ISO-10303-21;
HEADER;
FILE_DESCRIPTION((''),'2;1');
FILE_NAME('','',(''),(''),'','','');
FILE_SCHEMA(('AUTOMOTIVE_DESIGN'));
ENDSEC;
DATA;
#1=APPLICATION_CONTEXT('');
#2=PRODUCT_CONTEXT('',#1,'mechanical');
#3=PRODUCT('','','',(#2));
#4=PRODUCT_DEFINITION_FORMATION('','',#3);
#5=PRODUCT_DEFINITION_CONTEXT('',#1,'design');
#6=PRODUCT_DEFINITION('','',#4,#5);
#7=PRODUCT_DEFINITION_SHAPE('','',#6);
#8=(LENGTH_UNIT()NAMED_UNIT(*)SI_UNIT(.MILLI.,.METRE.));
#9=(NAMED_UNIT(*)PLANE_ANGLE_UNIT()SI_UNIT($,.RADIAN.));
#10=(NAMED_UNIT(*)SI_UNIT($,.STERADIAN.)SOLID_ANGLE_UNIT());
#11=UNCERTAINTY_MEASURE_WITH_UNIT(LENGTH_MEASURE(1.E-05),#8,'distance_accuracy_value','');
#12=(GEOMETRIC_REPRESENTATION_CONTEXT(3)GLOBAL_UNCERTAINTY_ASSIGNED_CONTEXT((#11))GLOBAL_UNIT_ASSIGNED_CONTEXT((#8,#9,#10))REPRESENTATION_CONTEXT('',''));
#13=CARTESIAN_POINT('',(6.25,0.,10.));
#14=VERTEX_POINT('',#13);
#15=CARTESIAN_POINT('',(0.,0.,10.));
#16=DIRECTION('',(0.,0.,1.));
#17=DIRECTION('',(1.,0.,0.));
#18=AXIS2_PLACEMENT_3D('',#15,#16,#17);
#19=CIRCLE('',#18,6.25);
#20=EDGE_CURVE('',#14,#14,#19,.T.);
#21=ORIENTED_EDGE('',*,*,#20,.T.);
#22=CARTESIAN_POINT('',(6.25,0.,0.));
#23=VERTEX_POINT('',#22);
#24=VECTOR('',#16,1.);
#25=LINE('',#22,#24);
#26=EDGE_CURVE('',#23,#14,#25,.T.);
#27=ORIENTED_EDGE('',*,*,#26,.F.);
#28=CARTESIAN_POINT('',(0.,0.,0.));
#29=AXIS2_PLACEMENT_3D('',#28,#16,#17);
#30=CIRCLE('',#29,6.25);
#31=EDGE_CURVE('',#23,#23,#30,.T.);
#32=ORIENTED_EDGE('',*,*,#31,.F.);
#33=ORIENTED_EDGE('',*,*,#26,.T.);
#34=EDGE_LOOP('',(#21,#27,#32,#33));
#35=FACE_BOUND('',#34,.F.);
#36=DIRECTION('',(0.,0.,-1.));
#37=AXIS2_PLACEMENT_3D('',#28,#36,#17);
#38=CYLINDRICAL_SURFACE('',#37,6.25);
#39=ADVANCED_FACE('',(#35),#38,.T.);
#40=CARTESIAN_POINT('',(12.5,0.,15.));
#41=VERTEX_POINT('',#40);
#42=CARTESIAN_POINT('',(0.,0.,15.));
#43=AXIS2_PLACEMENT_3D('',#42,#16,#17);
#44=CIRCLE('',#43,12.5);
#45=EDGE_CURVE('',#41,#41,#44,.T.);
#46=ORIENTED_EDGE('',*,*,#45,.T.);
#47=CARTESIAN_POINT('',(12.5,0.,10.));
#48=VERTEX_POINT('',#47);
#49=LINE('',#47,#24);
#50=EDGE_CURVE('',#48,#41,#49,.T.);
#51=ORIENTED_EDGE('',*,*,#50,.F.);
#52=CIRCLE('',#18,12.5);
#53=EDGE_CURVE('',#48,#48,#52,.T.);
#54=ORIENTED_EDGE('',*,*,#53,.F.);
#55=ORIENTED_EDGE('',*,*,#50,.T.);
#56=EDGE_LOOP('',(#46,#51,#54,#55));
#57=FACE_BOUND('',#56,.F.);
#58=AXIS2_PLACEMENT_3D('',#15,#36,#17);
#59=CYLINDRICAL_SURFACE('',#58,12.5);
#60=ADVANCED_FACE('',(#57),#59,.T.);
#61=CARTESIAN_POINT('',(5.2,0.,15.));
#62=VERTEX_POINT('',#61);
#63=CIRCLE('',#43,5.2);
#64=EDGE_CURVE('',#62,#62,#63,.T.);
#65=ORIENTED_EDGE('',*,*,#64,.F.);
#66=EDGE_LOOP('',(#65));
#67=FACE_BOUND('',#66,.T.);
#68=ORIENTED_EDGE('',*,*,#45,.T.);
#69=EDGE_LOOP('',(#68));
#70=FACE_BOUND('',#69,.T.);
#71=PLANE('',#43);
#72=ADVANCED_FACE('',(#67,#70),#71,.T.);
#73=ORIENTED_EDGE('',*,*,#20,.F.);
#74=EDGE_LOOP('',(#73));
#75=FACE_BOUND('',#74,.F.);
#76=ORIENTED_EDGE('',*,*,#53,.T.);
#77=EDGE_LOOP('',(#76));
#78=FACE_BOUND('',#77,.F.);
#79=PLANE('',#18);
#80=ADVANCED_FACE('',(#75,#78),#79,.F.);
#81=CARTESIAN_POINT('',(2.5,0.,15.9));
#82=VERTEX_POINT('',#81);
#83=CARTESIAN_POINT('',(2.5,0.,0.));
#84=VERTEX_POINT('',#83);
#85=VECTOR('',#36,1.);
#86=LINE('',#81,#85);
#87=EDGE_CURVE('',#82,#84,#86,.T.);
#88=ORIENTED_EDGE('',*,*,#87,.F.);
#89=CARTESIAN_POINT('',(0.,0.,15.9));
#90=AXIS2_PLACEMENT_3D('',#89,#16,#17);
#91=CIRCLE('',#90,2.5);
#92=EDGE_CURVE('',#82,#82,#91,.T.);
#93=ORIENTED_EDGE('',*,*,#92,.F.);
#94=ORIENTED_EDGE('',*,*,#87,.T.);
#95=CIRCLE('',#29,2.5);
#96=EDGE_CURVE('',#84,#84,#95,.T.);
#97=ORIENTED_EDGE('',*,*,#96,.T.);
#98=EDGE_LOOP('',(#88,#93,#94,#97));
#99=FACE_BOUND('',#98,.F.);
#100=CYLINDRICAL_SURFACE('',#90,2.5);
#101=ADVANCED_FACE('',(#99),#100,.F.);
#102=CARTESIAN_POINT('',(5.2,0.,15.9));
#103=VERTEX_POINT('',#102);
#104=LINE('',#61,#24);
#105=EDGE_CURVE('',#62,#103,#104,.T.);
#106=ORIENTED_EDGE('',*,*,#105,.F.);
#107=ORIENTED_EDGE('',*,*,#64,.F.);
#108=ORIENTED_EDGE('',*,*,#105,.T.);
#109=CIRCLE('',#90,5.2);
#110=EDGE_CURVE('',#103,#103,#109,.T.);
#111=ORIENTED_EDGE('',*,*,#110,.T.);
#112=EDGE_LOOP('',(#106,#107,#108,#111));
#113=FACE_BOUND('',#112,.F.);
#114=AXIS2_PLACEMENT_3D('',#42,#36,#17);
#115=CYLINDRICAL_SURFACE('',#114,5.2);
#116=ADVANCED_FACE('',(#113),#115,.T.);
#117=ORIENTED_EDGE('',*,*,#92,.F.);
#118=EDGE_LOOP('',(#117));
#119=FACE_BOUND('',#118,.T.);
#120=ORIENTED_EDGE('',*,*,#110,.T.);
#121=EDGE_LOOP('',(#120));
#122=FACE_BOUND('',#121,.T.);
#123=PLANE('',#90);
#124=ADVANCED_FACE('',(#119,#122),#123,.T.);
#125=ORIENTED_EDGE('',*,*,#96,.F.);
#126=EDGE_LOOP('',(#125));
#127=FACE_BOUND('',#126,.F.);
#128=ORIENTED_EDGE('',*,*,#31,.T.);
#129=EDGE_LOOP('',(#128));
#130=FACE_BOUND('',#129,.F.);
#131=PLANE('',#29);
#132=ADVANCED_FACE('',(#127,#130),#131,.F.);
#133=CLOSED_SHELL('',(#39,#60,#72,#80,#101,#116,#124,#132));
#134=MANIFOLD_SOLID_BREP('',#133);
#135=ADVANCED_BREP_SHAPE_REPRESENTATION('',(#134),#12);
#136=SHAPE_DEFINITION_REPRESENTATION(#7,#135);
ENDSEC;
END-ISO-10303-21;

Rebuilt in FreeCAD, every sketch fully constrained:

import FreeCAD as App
import Part
import Sketcher

doc = App.newDocument("Part")
params = doc.addObject("Spreadsheet::Sheet", "Params")
for row, (alias, value) in enumerate([
    ("sketch1_diameter", "12.5 mm"),
    ("pad1_length", "10 mm"),
    ("sketch2_diameter", "25 mm"),
    ("pad2_length", "5 mm"),
    ("sketch3_diameter", "10.4 mm"),
    ("pad3_length", "0.9 mm"),
    ("sketch4_diameter", "5 mm"),
    ("pocket1_length", "25 mm"),
], start=1):
    params.set(f"A{row}", alias)
    params.set(f"B{row}", "=" + value)
    params.setAlias(f"B{row}", alias)

body = doc.addObject("PartDesign::Body", "Body")

sketch1 = doc.addObject("Sketcher::SketchObject", "Sketch")
body.addObject(sketch1)
sketch1.AttachmentSupport = (doc.XY_Plane, [""])
sketch1.MapMode = "FlatFace"
sketch1.addGeometry(Part.Circle(App.Vector(0, 0, 0), App.Vector(0, 0, 1), 6.25), False)
sketch1.addConstraint(Sketcher.Constraint("Coincident", 0, 3, -1, 1))
sketch1.addConstraint(Sketcher.Constraint("Diameter", 0, 12.5))
sketch1.setExpression("Constraints[1]", "Params.sketch1_diameter")
pad1 = doc.addObject("PartDesign::Pad", "Pad")
body.addObject(pad1)
pad1.Profile = sketch1
pad1.setExpression("Length", "Params.pad1_length")

sketch2 = doc.addObject("Sketcher::SketchObject", "Sketch001")
body.addObject(sketch2)
sketch2.AttachmentSupport = (doc.XY_Plane, [""])
sketch2.MapMode = "FlatFace"
sketch2.AttachmentOffset = App.Placement(App.Vector(0, 0, 10), App.Rotation())
sketch2.addGeometry(Part.Circle(App.Vector(0, 0, 0), App.Vector(0, 0, 1), 12.5), False)
sketch2.addConstraint(Sketcher.Constraint("Coincident", 0, 3, -1, 1))
sketch2.addConstraint(Sketcher.Constraint("Diameter", 0, 25.0))
sketch2.setExpression("Constraints[1]", "Params.sketch2_diameter")
pad2 = doc.addObject("PartDesign::Pad", "Pad001")
body.addObject(pad2)
pad2.Profile = sketch2
pad2.setExpression("Length", "Params.pad2_length")

sketch3 = doc.addObject("Sketcher::SketchObject", "Sketch002")
body.addObject(sketch3)
sketch3.AttachmentSupport = (doc.XY_Plane, [""])
sketch3.MapMode = "FlatFace"
sketch3.AttachmentOffset = App.Placement(App.Vector(0, 0, 15), App.Rotation())
sketch3.addGeometry(Part.Circle(App.Vector(0, 0, 0), App.Vector(0, 0, 1), 5.2), False)
sketch3.addConstraint(Sketcher.Constraint("Coincident", 0, 3, -1, 1))
sketch3.addConstraint(Sketcher.Constraint("Diameter", 0, 10.4))
sketch3.setExpression("Constraints[1]", "Params.sketch3_diameter")
pad3 = doc.addObject("PartDesign::Pad", "Pad002")
body.addObject(pad3)
pad3.Profile = sketch3
pad3.setExpression("Length", "Params.pad3_length")

sketch4 = doc.addObject("Sketcher::SketchObject", "Sketch003")
body.addObject(sketch4)
sketch4.AttachmentSupport = (doc.XY_Plane, [""])
sketch4.MapMode = "FlatFace"
sketch4.AttachmentOffset = App.Placement(App.Vector(0, 0, 15.9), App.Rotation())
sketch4.addGeometry(Part.Circle(App.Vector(0, 0, 0), App.Vector(0, 0, 1), 2.5), False)
sketch4.addConstraint(Sketcher.Constraint("Coincident", 0, 3, -1, 1))
sketch4.addConstraint(Sketcher.Constraint("Diameter", 0, 5.0))
sketch4.setExpression("Constraints[1]", "Params.sketch4_diameter")
pocket1 = doc.addObject("PartDesign::Pocket", "Pocket")
body.addObject(pocket1)
pocket1.Profile = sketch4
pocket1.setExpression("Length", "Params.pocket1_length")

doc.recompute()
